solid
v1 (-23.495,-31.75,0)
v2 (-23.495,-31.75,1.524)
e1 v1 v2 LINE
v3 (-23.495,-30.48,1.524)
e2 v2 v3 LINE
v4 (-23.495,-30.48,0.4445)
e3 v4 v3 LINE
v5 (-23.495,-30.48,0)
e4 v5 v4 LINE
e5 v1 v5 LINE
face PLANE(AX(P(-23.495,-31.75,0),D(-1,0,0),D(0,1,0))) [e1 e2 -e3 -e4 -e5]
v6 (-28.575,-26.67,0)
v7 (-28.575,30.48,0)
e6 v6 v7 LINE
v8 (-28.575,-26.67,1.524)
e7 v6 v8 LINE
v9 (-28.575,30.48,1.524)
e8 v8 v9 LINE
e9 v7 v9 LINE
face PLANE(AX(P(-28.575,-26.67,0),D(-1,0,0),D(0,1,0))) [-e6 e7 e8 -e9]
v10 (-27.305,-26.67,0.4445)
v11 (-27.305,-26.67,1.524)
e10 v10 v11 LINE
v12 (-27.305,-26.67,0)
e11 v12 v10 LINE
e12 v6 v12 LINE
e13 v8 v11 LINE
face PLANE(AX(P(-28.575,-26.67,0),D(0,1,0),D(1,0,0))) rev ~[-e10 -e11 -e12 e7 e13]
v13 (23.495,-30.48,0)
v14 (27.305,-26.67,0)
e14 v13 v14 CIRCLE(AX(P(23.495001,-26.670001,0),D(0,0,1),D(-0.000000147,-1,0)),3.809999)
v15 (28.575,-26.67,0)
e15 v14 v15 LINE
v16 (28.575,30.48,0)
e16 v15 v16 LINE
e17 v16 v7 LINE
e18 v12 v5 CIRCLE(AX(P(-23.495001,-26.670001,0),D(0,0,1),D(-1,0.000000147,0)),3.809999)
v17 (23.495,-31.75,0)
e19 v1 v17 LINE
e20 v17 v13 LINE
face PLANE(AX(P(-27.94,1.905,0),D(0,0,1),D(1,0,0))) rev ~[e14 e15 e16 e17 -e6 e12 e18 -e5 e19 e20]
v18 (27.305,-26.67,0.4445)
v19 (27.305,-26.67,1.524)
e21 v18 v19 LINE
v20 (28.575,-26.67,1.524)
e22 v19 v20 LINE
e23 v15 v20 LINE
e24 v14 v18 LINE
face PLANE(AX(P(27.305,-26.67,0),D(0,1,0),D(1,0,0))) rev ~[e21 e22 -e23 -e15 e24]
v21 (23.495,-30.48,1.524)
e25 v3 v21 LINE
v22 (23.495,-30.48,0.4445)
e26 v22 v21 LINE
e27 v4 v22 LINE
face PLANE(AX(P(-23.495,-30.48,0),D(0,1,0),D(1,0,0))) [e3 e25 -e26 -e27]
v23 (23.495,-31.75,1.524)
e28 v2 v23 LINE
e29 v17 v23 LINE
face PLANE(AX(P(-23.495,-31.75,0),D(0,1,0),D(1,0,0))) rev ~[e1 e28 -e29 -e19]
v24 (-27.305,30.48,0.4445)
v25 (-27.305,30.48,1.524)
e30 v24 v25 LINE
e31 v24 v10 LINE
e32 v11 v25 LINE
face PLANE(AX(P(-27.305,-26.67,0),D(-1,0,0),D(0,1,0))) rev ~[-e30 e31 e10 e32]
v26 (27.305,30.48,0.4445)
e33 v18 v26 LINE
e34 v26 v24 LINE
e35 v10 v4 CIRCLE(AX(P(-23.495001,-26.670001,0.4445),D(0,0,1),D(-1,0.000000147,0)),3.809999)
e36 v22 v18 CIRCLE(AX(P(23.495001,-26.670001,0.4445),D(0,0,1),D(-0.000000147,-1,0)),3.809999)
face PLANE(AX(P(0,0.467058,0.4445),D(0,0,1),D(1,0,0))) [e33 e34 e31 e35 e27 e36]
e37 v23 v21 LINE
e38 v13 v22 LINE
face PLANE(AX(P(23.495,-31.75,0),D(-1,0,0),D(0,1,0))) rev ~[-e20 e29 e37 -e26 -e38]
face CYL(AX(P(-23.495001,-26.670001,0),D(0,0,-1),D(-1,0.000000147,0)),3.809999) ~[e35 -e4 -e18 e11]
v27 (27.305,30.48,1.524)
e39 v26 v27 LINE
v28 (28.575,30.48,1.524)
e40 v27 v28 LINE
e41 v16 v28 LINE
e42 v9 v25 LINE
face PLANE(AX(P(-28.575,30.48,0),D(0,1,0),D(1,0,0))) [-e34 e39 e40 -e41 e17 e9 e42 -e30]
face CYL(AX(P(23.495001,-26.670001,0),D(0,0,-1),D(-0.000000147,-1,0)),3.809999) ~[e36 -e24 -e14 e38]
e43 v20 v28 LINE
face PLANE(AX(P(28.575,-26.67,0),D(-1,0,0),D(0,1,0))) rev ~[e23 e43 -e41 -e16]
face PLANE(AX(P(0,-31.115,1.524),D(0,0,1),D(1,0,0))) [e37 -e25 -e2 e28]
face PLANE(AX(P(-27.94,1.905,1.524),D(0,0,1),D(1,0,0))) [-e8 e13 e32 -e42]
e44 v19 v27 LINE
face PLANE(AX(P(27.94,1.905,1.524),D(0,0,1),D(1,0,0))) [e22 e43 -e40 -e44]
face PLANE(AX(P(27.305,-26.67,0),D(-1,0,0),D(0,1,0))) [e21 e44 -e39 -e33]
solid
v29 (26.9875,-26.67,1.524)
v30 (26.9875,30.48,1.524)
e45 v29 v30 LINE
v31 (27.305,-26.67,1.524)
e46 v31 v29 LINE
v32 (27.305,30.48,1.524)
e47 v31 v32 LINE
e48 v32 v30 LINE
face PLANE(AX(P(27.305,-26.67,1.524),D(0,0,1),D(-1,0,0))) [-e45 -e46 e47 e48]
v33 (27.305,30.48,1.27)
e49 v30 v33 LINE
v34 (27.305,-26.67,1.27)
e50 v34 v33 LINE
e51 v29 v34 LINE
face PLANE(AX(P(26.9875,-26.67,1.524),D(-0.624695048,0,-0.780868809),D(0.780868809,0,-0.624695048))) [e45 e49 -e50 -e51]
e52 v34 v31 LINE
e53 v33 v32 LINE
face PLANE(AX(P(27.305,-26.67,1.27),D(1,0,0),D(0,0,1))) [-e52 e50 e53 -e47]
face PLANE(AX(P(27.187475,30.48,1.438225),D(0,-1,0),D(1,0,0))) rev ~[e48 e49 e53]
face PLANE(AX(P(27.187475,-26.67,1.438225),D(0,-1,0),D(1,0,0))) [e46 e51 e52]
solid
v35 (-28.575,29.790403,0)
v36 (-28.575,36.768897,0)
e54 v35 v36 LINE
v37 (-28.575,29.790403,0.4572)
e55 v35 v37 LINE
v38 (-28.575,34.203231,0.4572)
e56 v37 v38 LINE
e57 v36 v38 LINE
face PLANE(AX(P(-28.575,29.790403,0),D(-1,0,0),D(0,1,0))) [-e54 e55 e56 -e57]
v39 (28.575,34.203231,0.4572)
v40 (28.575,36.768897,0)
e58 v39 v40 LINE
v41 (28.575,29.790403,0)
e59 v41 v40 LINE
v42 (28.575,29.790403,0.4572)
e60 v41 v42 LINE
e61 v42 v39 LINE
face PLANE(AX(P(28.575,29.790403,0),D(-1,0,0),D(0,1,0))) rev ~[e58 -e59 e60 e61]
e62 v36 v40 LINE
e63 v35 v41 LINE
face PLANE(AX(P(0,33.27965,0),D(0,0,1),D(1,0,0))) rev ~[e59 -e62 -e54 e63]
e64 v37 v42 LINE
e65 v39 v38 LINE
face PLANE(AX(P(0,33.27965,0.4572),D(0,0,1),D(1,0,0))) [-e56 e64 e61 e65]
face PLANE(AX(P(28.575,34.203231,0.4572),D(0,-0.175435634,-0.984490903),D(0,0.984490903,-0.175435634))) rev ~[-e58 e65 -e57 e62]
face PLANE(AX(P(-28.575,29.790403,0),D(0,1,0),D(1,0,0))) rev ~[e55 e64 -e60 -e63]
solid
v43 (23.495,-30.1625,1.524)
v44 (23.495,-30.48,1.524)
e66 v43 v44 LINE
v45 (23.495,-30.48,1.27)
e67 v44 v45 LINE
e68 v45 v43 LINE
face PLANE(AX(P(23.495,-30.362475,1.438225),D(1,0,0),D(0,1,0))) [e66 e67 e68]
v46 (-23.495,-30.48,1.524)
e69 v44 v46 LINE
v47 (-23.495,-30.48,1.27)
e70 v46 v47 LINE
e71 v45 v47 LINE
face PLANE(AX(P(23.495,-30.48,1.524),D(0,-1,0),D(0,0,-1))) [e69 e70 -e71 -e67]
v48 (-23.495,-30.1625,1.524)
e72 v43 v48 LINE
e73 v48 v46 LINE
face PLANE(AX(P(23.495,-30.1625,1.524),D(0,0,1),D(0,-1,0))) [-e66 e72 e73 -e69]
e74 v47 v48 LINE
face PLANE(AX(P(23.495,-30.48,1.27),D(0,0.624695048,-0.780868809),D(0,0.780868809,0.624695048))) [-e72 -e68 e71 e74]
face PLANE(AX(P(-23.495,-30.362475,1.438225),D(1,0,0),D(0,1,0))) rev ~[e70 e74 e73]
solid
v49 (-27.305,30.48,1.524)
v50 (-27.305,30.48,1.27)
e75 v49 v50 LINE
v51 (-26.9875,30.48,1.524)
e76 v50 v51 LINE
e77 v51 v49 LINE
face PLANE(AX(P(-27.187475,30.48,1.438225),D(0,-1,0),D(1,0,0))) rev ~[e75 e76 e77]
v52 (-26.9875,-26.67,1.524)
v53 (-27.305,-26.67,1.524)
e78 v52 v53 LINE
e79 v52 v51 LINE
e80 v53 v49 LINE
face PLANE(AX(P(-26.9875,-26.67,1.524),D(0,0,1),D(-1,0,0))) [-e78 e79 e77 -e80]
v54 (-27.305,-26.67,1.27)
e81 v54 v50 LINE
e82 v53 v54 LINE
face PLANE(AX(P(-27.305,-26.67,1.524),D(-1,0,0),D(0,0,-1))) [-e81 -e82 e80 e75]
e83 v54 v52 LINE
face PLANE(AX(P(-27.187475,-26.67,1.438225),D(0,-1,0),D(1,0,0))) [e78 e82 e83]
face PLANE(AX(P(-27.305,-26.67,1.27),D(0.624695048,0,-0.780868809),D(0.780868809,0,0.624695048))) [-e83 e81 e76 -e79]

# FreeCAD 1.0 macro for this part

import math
import FreeCAD as App
import Part
import Sketcher
Q = App.Units.Quantity

doc = App.newDocument("Part")
params = doc.addObject("Spreadsheet::Sheet", "Params")
for row, (alias, value) in enumerate([
    ("sketch1_radius", "0.15 in"),
    ("sketch1_height", "2.25 in"),
    ("pad1_length", "0.0175 in"),
    ("sketch2_width", "0.05 in"),
    ("sketch2_width2", "1.85 in"),
    ("sketch2_height", "2.25 in"),
    ("pad2_length", "0.06 in"),
    ("sketch3_height", "0.01 in"),
    ("pad3_length", "2.25 in"),
    ("sketch4_height", "0.01 in"),
    ("pad4_length", "2.25 in"),
    ("sketch5_height", "0.01 in"),
    ("pad5_length", "1.85 in"),
    ("sketch6_width", "2.25 in"),
    ("pad6_length", "0.018 in"),
    ("sketch7_height", "0.018 in"),
    ("pocket1_length", "3 in"),
], start=1):
    params.set(f"A{row}", alias)
    params.set(f"B{row}", "=" + value)
    params.setAlias(f"B{row}", alias)

body = doc.addObject("PartDesign::Body", "Body")

sketch1 = body.newObject("Sketcher::SketchObject", "Sketch")
sketch1.AttachmentSupport = (doc.getObject("XY_Plane"), [""])
sketch1.MapMode = "FlatFace"
sketch1.addGeometry([
    Part.LineSegment(App.Vector(-27.3, 30.5, 0), App.Vector(-27.3, -26.7, 0)),
    Part.ArcOfCircle(Part.Circle(App.Vector(-23.5, -26.7, 0), App.Vector(0, 0, 1), 3.8), math.radians(180), math.radians(270)),
    Part.LineSegment(App.Vector(-23.5, -30.5, 0), App.Vector(23.5, -30.5, 0)),
    Part.ArcOfCircle(Part.Circle(App.Vector(23.5, -26.7, 0), App.Vector(0, 0, 1), 3.8), math.radians(-90), math.radians(0)),
    Part.LineSegment(App.Vector(27.3, -26.7, 0), App.Vector(27.3, 30.5, 0)),
    Part.LineSegment(App.Vector(27.3, 30.5, 0), App.Vector(-27.3, 30.5, 0)),
], False)
sketch1.addConstraint([
    Sketcher.Constraint("Tangent", 0, 2, 1, 1),
    Sketcher.Constraint("Tangent", 1, 2, 2, 1),
    Sketcher.Constraint("Tangent", 2, 2, 3, 1),
    Sketcher.Constraint("Tangent", 3, 2, 4, 1),
    Sketcher.Constraint("Coincident", 4, 2, 5, 1),
    Sketcher.Constraint("Coincident", 5, 2, 0, 1),
    Sketcher.Constraint("Vertical", 0),
    Sketcher.Constraint("Horizontal", 2),
    Sketcher.Constraint("Vertical", 4),
    Sketcher.Constraint("Horizontal", 5),
    Sketcher.Constraint("Equal", 1, 3),
    Sketcher.Constraint("Radius", 1, Q("0.15 in")),
    Sketcher.Constraint("DistanceX", 0, 2, 3, 3, Q("2 in")),
    Sketcher.Constraint("DistanceY", 0, 2, 0, 1, Q("2.25 in")),
    Sketcher.Constraint("DistanceY", 1, 2, -1, 1, Q("1.2 in")),
    Sketcher.Constraint("DistanceX", 1, 3, -1, 1, Q("0.925 in")),
])
sketch1.setExpression("Constraints[11]", "Params.sketch1_radius")
sketch1.setExpression("Constraints[13]", "Params.sketch1_height")
pad1 = body.newObject("PartDesign::Pad", "Pad")
pad1.Profile = sketch1
pad1.setExpression("Length", "Params.pad1_length")

sketch2 = body.newObject("Sketcher::SketchObject", "Sketch001")
sketch2.AttachmentSupport = (doc.getObject("XY_Plane"), [""])
sketch2.MapMode = "FlatFace"
sketch2.addGeometry([
    Part.LineSegment(App.Vector(-28.6, 30.5, 0), App.Vector(-28.6, -26.7, 0)),
    Part.LineSegment(App.Vector(-28.6, -26.7, 0), App.Vector(-27.3, -26.7, 0)),
    Part.LineSegment(App.Vector(-27.3, -26.7, 0), App.Vector(-27.3, 30.5, 0)),
    Part.LineSegment(App.Vector(-27.3, 30.5, 0), App.Vector(-28.6, 30.5, 0)),
    Part.LineSegment(App.Vector(27.3, 30.5, 0), App.Vector(27.3, -26.7, 0)),
    Part.LineSegment(App.Vector(27.3, -26.7, 0), App.Vector(28.6, -26.7, 0)),
    Part.LineSegment(App.Vector(28.6, -26.7, 0), App.Vector(28.6, 30.5, 0)),
    Part.LineSegment(App.Vector(28.6, 30.5, 0), App.Vector(27.3, 30.5, 0)),
    Part.LineSegment(App.Vector(-23.5, -30.5, 0), App.Vector(-23.5, -31.8, 0)),
    Part.LineSegment(App.Vector(-23.5, -31.8, 0), App.Vector(23.5, -31.8, 0)),
    Part.LineSegment(App.Vector(23.5, -31.8, 0), App.Vector(23.5, -30.5, 0)),
    Part.LineSegment(App.Vector(23.5, -30.5, 0), App.Vector(-23.5, -30.5, 0)),
], False)
sketch2.addConstraint([
    Sketcher.Constraint("Coincident", 0, 2, 1, 1),
    Sketcher.Constraint("Coincident", 1, 2, 2, 1),
    Sketcher.Constraint("Coincident", 2, 2, 3, 1),
    Sketcher.Constraint("Coincident", 3, 2, 0, 1),
    Sketcher.Constraint("Coincident", 4, 2, 5, 1),
    Sketcher.Constraint("Coincident", 5, 2, 6, 1),
    Sketcher.Constraint("Coincident", 6, 2, 7, 1),
    Sketcher.Constraint("Coincident", 7, 2, 4, 1),
    Sketcher.Constraint("Coincident", 8, 2, 9, 1),
    Sketcher.Constraint("Coincident", 9, 2, 10, 1),
    Sketcher.Constraint("Coincident", 10, 2, 11, 1),
    Sketcher.Constraint("Coincident", 11, 2, 8, 1),
    Sketcher.Constraint("Vertical", 0),
    Sketcher.Constraint("Horizontal", 1),
    Sketcher.Constraint("Vertical", 2),
    Sketcher.Constraint("Horizontal", 3),
    Sketcher.Constraint("Vertical", 4),
    Sketcher.Constraint("Horizontal", 5),
    Sketcher.Constraint("Vertical", 6),
    Sketcher.Constraint("Horizontal", 7),
    Sketcher.Constraint("Vertical", 8),
    Sketcher.Constraint("Horizontal", 9),
    Sketcher.Constraint("Vertical", 10),
    Sketcher.Constraint("Horizontal", 11),
    Sketcher.Constraint("Symmetric", 1, 2, 4, 2, -2),
    Sketcher.Constraint("Symmetric", 3, 2, 6, 2, -2),
    Sketcher.Constraint("Equal", 7, 8),
    Sketcher.Constraint("DistanceX", 8, 2, 4, 2, Q("2 in")),
    Sketcher.Constraint("DistanceX", 1, 2, 9, 2, Q("2 in")),
    Sketcher.Constraint("DistanceX", 1, 1, 1, 2, Q("0.05 in")),
    Sketcher.Constraint("DistanceX", 9, 1, 9, 2, Q("1.85 in")),
    Sketcher.Constraint("DistanceY", 0, 2, 0, 1, Q("2.25 in")),
    Sketcher.Constraint("DistanceY", -1, 1, 2, 2, Q("1.2 in")),
    Sketcher.Constraint("DistanceY", 10, 2, -1, 1, Q("1.2 in")),
])
sketch2.setExpression("Constraints[29]", "Params.sketch2_width")
sketch2.setExpression("Constraints[30]", "Params.sketch2_width2")
sketch2.setExpression("Constraints[31]", "Params.sketch2_height")
pad2 = body.newObject("PartDesign::Pad", "Pad001")
pad2.Profile = sketch2
pad2.setExpression("Length", "Params.pad2_length")
body2 = doc.addObject("PartDesign::Body", "Body001")

sketch3 = body2.newObject("Sketcher::SketchObject", "Sketch002")
sketch3.AttachmentSupport = (doc.getObject("XZ_Plane001"), [""])
sketch3.MapMode = "FlatFace"
sketch3.AttachmentOffset = App.Placement(App.Vector(0, 0, 1.05 * 25.4), App.Rotation())
sketch3.addGeometry([
    Part.LineSegment(App.Vector(27.3, 1.27, 0), App.Vector(27.3, 1.52, 0)),
    Part.LineSegment(App.Vector(27.3, 1.52, 0), App.Vector(26.99, 1.52, 0)),
    Part.LineSegment(App.Vector(26.99, 1.52, 0), App.Vector(27.3, 1.27, 0)),
], False)
sketch3.addConstraint([
    Sketcher.Constraint("Coincident", 0, 2, 1, 1),
    Sketcher.Constraint("Coincident", 1, 2, 2, 1),
    Sketcher.Constraint("Coincident", 2, 2, 0, 1),
    Sketcher.Constraint("Vertical", 0),
    Sketcher.Constraint("Horizontal", 1),
    Sketcher.Constraint("DistanceY", 0, 1, 0, 2, Q("0.01 in")),
    Sketcher.Constraint("DistanceY", -1, 1, 0, 2, Q("0.06 in")),
    Sketcher.Constraint("DistanceX", 1, 2, 1, 1, Q("0.0125 in")),
    Sketcher.Constraint("DistanceX", -1, 1, 0, 2, Q("1.075 in")),
])
sketch3.setExpression("Constraints[5]", "Params.sketch3_height")
pad3 = body2.newObject("PartDesign::Pad", "Pad002")
pad3.Profile = sketch3
pad3.setExpression("Length", "Params.pad3_length")
pad3.Reversed = True
body3 = doc.addObject("PartDesign::Body", "Body002")

sketch4 = body3.newObject("Sketcher::SketchObject", "Sketch003")
sketch4.AttachmentSupport = (doc.getObject("XZ_Plane002"), [""])
sketch4.MapMode = "FlatFace"
sketch4.AttachmentOffset = App.Placement(App.Vector(0, 0, 1.05 * 25.4), App.Rotation())
sketch4.addGeometry([
    Part.LineSegment(App.Vector(-26.99, 1.52, 0), App.Vector(-27.3, 1.52, 0)),
    Part.LineSegment(App.Vector(-27.3, 1.52, 0), App.Vector(-27.3, 1.27, 0)),
    Part.LineSegment(App.Vector(-27.3, 1.27, 0), App.Vector(-26.99, 1.52, 0)),
], False)
sketch4.addConstraint([
    Sketcher.Constraint("Coincident", 0, 2, 1, 1),
    Sketcher.Constraint("Coincident", 1, 2, 2, 1),
    Sketcher.Constraint("Coincident", 2, 2, 0, 1),
    Sketcher.Constraint("Horizontal", 0),
    Sketcher.Constraint("Vertical", 1),
    Sketcher.Constraint("DistanceY", 1, 2, 1, 1, Q("0.01 in")),
    Sketcher.Constraint("DistanceY", -1, 1, 0, 2, Q("0.06 in")),
    Sketcher.Constraint("DistanceX", 0, 2, 0, 1, Q("0.0125 in")),
    Sketcher.Constraint("DistanceX", 0, 2, -1, 1, Q("1.075 in")),
])
sketch4.setExpression("Constraints[5]", "Params.sketch4_height")
pad4 = body3.newObject("PartDesign::Pad", "Pad003")
pad4.Profile = sketch4
pad4.setExpression("Length", "Params.pad4_length")
pad4.Reversed = True
body4 = doc.addObject("PartDesign::Body", "Body003")

sketch5 = body4.newObject("Sketcher::SketchObject", "Sketch004")
sketch5.AttachmentSupport = (doc.getObject("YZ_Plane003"), [""])
sketch5.MapMode = "FlatFace"
sketch5.AttachmentOffset = App.Placement(App.Vector(0, 0, 0.925 * 25.4), App.Rotation())
sketch5.addGeometry([
    Part.LineSegment(App.Vector(-30.16, 1.52, 0), App.Vector(-30.48, 1.52, 0)),
    Part.LineSegment(App.Vector(-30.48, 1.52, 0), App.Vector(-30.48, 1.27, 0)),
    Part.LineSegment(App.Vector(-30.48, 1.27, 0), App.Vector(-30.16, 1.52, 0)),
], False)
sketch5.addConstraint([
    Sketcher.Constraint("Coincident", 0, 2, 1, 1),
    Sketcher.Constraint("Coincident", 1, 2, 2, 1),
    Sketcher.Constraint("Coincident", 2, 2, 0, 1),
    Sketcher.Constraint("Horizontal", 0),
    Sketcher.Constraint("Vertical", 1),
    Sketcher.Constraint("DistanceY", 1, 2, 1, 1, Q("0.01 in")),
    Sketcher.Constraint("DistanceX", 0, 2, -1, 1, Q("1.2 in")),
    Sketcher.Constraint("DistanceY", -1, 1, 0, 2, Q("0.06 in")),
    Sketcher.Constraint("DistanceX", 0, 2, 0, 1, Q("0.0125 in")),
])
sketch5.setExpression("Constraints[5]", "Params.sketch5_height")
pad5 = body4.newObject("PartDesign::Pad", "Pad004")
pad5.Profile = sketch5
pad5.setExpression("Length", "Params.pad5_length")
pad5.Reversed = True
body5 = doc.addObject("PartDesign::Body", "Body004")

sketch6 = body5.newObject("Sketcher::SketchObject", "Sketch005")
sketch6.AttachmentSupport = (doc.getObject("XY_Plane004"), [""])
sketch6.MapMode = "FlatFace"
sketch6.addGeometry([
    Part.LineSegment(App.Vector(-29, 37, 0), App.Vector(-29, 30, 0)),
    Part.LineSegment(App.Vector(-29, 30, 0), App.Vector(29, 30, 0)),
    Part.LineSegment(App.Vector(29, 30, 0), App.Vector(29, 37, 0)),
    Part.LineSegment(App.Vector(29, 37, 0), App.Vector(-29, 37, 0)),
], False)
sketch6.addConstraint([
    Sketcher.Constraint("Coincident", 0, 2, 1, 1),
    Sketcher.Constraint("Coincident", 1, 2, 2, 1),
    Sketcher.Constraint("Coincident", 2, 2, 3, 1),
    Sketcher.Constraint("Coincident", 3, 2, 0, 1),
    Sketcher.Constraint("Vertical", 0),
    Sketcher.Constraint("Horizontal", 1),
    Sketcher.Constraint("Vertical", 2),
    Sketcher.Constraint("Horizontal", 3),
    Sketcher.Constraint("DistanceX", 1, 1, 1, 2, Q("2.25 in")),
    Sketcher.Constraint("DistanceX", 0, 2, -1, 1, Q("1.125 in")),
    Sketcher.Constraint("DistanceY", 0, 2, 0, 1, Q("6.978494 mm")),
    Sketcher.Constraint("DistanceY", -1, 1, 0, 2, Q("29.790403 mm")),
])
sketch6.setExpression("Constraints[8]", "Params.sketch6_width")
pad6 = body5.newObject("PartDesign::Pad", "Pad005")
pad6.Profile = sketch6
pad6.setExpression("Length", "Params.pad6_length")

sketch7 = body5.newObject("Sketcher::SketchObject", "Sketch006")
sketch7.AttachmentSupport = (doc.getObject("YZ_Plane004"), [""])
sketch7.MapMode = "FlatFace"
sketch7.AttachmentOffset = App.Placement(App.Vector(0, 0, 1.125 * 25.4), App.Rotation())
sketch7.addGeometry([
    Part.LineSegment(App.Vector(34.2, 0.46, 0), App.Vector(36.77, 0, 0)),
    Part.LineSegment(App.Vector(36.77, 0, 0), App.Vector(36.77, 0.46, 0)),
    Part.LineSegment(App.Vector(36.77, 0.46, 0), App.Vector(34.2, 0.46, 0)),
], False)
sketch7.addConstraint([
    Sketcher.Constraint("Coincident", 0, 2, 1, 1),
    Sketcher.Constraint("Coincident", 1, 2, 2, 1),
    Sketcher.Constraint("Coincident", 2, 2, 0, 1),
    Sketcher.Constraint("Vertical", 1),
    Sketcher.Constraint("Horizontal", 2),
    Sketcher.Constraint("PointOnObject", 0, 2, -1),
    Sketcher.Constraint("DistanceY", 1, 1, 1, 2, Q("0.018 in")),
    Sketcher.Constraint("DistanceX", 2, 2, 2, 1, Q("2.565666 mm")),
    Sketcher.Constraint("DistanceX", -1, 1, 2, 2, Q("34.203231 mm")),
])
sketch7.setExpression("Constraints[6]", "Params.sketch7_height")
pocket1 = body5.newObject("PartDesign::Pocket", "Pocket")
pocket1.Profile = sketch7
pocket1.setExpression("Length", "Params.pocket1_length")

doc.recompute()
